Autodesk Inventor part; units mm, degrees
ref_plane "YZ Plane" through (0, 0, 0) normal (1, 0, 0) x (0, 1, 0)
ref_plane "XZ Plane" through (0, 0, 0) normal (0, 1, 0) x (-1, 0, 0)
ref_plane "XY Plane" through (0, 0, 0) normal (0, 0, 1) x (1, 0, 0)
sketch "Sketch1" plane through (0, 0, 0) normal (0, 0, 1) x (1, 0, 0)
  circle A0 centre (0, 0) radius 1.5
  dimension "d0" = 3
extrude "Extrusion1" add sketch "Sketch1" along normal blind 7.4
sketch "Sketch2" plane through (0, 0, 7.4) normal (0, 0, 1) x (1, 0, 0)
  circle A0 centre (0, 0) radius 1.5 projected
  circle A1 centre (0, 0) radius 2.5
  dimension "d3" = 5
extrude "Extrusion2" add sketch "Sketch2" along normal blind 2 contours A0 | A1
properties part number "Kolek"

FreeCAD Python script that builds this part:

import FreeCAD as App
import Part
import Sketcher

V = App.Vector
Q = App.Units.Quantity

doc = App.newDocument("Part")
body = doc.addObject("PartDesign::Body", "Body")

sketch1 = body.newObject("Sketcher::SketchObject", "Sketch")
sketch1.AttachmentSupport = (doc.getObject("XY_Plane"), [""])
sketch1.MapMode = "FlatFace"
sketch1.addGeometry(Part.Circle(V(0, 0, 0), V(0, 0, 1), 1.5), False)
sketch1.addConstraint(Sketcher.Constraint("Coincident", 0, 3, -1, 1))
sketch1.addConstraint(Sketcher.Constraint("Diameter", 0, Q("3 mm")))
pad1 = body.newObject("PartDesign::Pad", "Pad")
pad1.Profile = sketch1
pad1.Length = 7.4

sketch2 = body.newObject("Sketcher::SketchObject", "Sketch001")
sketch2.AttachmentSupport = (doc.getObject("XY_Plane"), [""])
sketch2.MapMode = "FlatFace"
sketch2.AttachmentOffset = App.Placement(V(0, 0, 7.4), App.Rotation())
sketch2.addGeometry(Part.Circle(V(0, 0, 0), V(0, 0, 1), 2.5), False)
sketch2.addConstraint(Sketcher.Constraint("Coincident", 0, 3, -1, 1))
sketch2.addConstraint(Sketcher.Constraint("Diameter", 0, Q("5 mm")))
pad2 = body.newObject("PartDesign::Pad", "Pad001")
pad2.Profile = sketch2
pad2.Length = 2

doc.recompute()
